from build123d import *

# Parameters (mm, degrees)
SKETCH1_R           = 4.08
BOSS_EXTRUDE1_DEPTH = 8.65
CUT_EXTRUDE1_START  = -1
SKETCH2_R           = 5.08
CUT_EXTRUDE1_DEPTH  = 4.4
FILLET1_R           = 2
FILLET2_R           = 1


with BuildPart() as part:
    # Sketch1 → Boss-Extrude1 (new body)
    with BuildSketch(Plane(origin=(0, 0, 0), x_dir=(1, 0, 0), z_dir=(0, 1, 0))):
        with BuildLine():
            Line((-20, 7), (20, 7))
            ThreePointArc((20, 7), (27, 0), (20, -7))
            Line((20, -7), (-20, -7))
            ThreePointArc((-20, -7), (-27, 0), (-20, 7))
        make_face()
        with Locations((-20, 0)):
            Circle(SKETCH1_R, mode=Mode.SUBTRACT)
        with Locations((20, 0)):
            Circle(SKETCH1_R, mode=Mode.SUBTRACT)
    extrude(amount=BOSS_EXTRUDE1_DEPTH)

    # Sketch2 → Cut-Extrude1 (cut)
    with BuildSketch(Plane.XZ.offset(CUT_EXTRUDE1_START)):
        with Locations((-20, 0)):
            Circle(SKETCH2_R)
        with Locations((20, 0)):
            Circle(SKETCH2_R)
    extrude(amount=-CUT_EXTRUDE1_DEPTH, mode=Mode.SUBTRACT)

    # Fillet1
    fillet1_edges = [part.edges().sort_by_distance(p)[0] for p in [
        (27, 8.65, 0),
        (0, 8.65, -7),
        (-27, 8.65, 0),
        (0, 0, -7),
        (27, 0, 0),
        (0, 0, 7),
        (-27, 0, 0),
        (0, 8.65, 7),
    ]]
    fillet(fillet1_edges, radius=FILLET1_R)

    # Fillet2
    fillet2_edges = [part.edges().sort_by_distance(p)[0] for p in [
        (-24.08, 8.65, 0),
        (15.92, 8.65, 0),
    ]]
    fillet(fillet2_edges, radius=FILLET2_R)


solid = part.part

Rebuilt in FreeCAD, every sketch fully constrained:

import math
import FreeCAD as App
import Part
import Sketcher


def edges_at(feature, points):
    """Names of the edges that pass closest to the given points."""
    edges = feature.Shape.Edges
    near = lambda p: min(range(len(edges)), key=lambda i: edges[i].distToShape(Part.Vertex(*p))[0])
    return sorted({f"Edge{near(p) + 1}" for p in points})

doc = App.newDocument("Part")
body = doc.addObject("PartDesign::Body", "Body")

sketch1 = body.newObject("Sketcher::SketchObject", "Sketch")
sketch1.AttachmentSupport = (doc.getObject("XZ_Plane"), [""])
sketch1.MapMode = "FlatFace"
sketch1.addGeometry(Part.LineSegment(App.Vector(20, -7, 0), App.Vector(-20, -7, 0)), False)
sketch1.addGeometry(Part.ArcOfCircle(Part.Circle(App.Vector(-20, 0, 0), App.Vector(0, 0, 1), 7), math.radians(90), math.radians(270)), False)
sketch1.addGeometry(Part.LineSegment(App.Vector(-20, 7, 0), App.Vector(20, 7, 0)), False)
sketch1.addGeometry(Part.ArcOfCircle(Part.Circle(App.Vector(20, 0, 0), App.Vector(0, 0, 1), 7), math.radians(-90), math.radians(90)), False)
sketch1.addGeometry(Part.Circle(App.Vector(20, 0, 0), App.Vector(0, 0, 1), 4.08), False)
sketch1.addGeometry(Part.Circle(App.Vector(-20, 0, 0), App.Vector(0, 0, 1), 4.08), False)
sketch1.addConstraint(Sketcher.Constraint("Tangent", 0, 2, 1, 2))
sketch1.addConstraint(Sketcher.Constraint("Tangent", 1, 1, 2, 1))
sketch1.addConstraint(Sketcher.Constraint("Tangent", 2, 2, 3, 2))
sketch1.addConstraint(Sketcher.Constraint("Tangent", 3, 1, 0, 1))
sketch1.addConstraint(Sketcher.Constraint("Horizontal", 0))
sketch1.addConstraint(Sketcher.Constraint("Horizontal", 2))
sketch1.addConstraint(Sketcher.Constraint("Coincident", 4, 3, 3, 3))
sketch1.addConstraint(Sketcher.Constraint("Coincident", 5, 3, 1, 3))
sketch1.addConstraint(Sketcher.Constraint("Equal", 4, 5))
sketch1.addConstraint(Sketcher.Constraint("Symmetric", 1, 3, 3, 3, -1, 1))
sketch1.addConstraint(Sketcher.Constraint("Radius", 1, 7.0))
sketch1.addConstraint(Sketcher.Constraint("Diameter", 4, 8.16))
sketch1.addConstraint(Sketcher.Constraint("DistanceX", 0, 2, 0, 1, 40.0))
pad1 = body.newObject("PartDesign::Pad", "Pad")
pad1.Profile = sketch1
pad1.Length = 8.65
pad1.Reversed = True

sketch2 = body.newObject("Sketcher::SketchObject", "Sketch001")
sketch2.AttachmentSupport = (doc.getObject("XZ_Plane"), [""])
sketch2.MapMode = "FlatFace"
sketch2.AttachmentOffset = App.Placement(App.Vector(0, 0, -1), App.Rotation())
sketch2.addGeometry(Part.Circle(App.Vector(-20, 0, 0), App.Vector(0, 0, 1), 5.08), False)
sketch2.addGeometry(Part.Circle(App.Vector(20, 0, 0), App.Vector(0, 0, 1), 5.08), False)
sketch2.addConstraint(Sketcher.Constraint("Equal", 0, 1))
sketch2.addConstraint(Sketcher.Constraint("Symmetric", 0, 3, 1, 3, -1, 1))
sketch2.addConstraint(Sketcher.Constraint("PointOnObject", 0, 3, -1))
sketch2.addConstraint(Sketcher.Constraint("Diameter", 0, 10.16))
sketch2.addConstraint(Sketcher.Constraint("DistanceX", 0, 3, -1, 1, 20.0))
pocket1 = body.newObject("PartDesign::Pocket", "Pocket")
pocket1.Profile = sketch2
pocket1.Length = 4.4
doc.recompute()

fillet = body.newObject("PartDesign::Fillet", "Fillet")
fillet.Base = (pocket1, edges_at(pocket1, [
    (27, 8.65, 0),
    (0, 8.65, -7),
    (-27, 8.65, 0),
    (0, 0, -7),
    (27, 0, 0),
    (0, 0, 7),
    (-27, 0, 0),
    (0, 8.65, 7),
]))
fillet.Radius = 2
doc.recompute()

fillet2 = body.newObject("PartDesign::Fillet", "Fillet001")
fillet2.Base = (fillet, edges_at(fillet, [(-24.08, 8.65, 0), (15.92, 8.65, 0)]))
fillet2.Radius = 1

doc.recompute()
